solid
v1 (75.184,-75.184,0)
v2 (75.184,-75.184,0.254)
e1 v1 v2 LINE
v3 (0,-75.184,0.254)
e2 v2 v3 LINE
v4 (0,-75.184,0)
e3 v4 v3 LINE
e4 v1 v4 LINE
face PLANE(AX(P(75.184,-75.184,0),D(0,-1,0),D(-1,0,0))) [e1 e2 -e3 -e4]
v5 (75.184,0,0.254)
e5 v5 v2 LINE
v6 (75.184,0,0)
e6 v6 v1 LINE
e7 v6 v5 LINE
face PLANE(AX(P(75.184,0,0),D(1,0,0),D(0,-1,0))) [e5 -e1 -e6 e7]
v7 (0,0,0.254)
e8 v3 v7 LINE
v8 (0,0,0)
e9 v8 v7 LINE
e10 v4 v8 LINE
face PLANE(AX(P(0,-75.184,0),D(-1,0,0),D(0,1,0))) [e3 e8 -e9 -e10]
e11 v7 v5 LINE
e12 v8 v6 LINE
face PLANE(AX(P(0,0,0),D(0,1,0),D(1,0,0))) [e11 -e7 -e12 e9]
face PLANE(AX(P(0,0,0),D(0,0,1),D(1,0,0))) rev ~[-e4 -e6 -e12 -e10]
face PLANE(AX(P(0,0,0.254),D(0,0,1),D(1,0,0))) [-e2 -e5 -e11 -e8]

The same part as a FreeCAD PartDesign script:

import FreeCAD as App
import Part
import Sketcher
Q = App.Units.Quantity


def add_polygon(sketch, points):
    """Adds a closed chain of lines whose ends are joined by coincident constraints."""
    first, n = sketch.GeometryCount, len(points)
    for a, b in zip(points, points[1:] + points[:1]):
        sketch.addGeometry(Part.LineSegment(App.Vector(*a, 0), App.Vector(*b, 0)), False)
    for i in range(n):
        sketch.addConstraint(Sketcher.Constraint("Coincident", first + i, 2, first + (i + 1) % n, 1))

doc = App.newDocument("Part")
params = doc.addObject("Spreadsheet::Sheet", "Params")
for row, (alias, value) in enumerate([
    ("sketch1_width", "2.96 in"),
    ("pad1_length", "0.01 in"),
], start=1):
    params.set(f"A{row}", alias)
    params.set(f"B{row}", "=" + value)
    params.setAlias(f"B{row}", alias)

body = doc.addObject("PartDesign::Body", "Body")

# Sketch on XY plane
sketch1 = body.newObject("Sketcher::SketchObject", "Sketch")
sketch1.AttachmentSupport = (doc.getObject("XY_Plane"), [""])
sketch1.MapMode = "FlatFace"
add_polygon(sketch1, [(75, 0), (0, 0), (0, -75), (75, -75)])  # lines 0-3
sketch1.addConstraint(Sketcher.Constraint("Horizontal", 0))
sketch1.addConstraint(Sketcher.Constraint("Vertical", 1))
sketch1.addConstraint(Sketcher.Constraint("Horizontal", 2))
sketch1.addConstraint(Sketcher.Constraint("Vertical", 3))
sketch1.addConstraint(Sketcher.Constraint("Coincident", 0, 2, -1, 1))
sketch1.addConstraint(Sketcher.Constraint("Equal", 2, 1))
sketch1.addConstraint(Sketcher.Constraint("DistanceX", 0, 2, 0, 1, Q("2.96 in")))
sketch1.setExpression("Constraints[10]", "Params.sketch1_width")
pad1 = body.newObject("PartDesign::Pad", "Pad")
pad1.Profile = sketch1
pad1.setExpression("Length", "Params.pad1_length")

doc.recompute()
